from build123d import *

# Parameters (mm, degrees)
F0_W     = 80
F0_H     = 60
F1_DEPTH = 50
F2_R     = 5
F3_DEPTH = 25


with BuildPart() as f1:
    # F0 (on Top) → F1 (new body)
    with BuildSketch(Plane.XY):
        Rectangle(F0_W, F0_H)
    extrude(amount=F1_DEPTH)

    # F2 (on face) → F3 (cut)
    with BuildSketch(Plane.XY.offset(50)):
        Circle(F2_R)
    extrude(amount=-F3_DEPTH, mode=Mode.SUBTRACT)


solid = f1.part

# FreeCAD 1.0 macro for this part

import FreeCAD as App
import Part
import Sketcher

V = App.Vector

doc = App.newDocument("Part")
body = doc.addObject("PartDesign::Body", "Body")

# Sketch on XY plane
sketch1 = body.newObject("Sketcher::SketchObject", "Sketch")
sketch1.AttachmentSupport = (doc.getObject("XY_Plane"), [""])
sketch1.MapMode = "FlatFace"
sketch1.addGeometry([
    Part.LineSegment(V(-40, 30, 0), V(-40, -30, 0)),
    Part.LineSegment(V(-40, -30, 0), V(40, -30, 0)),
    Part.LineSegment(V(40, -30, 0), V(40, 30, 0)),
    Part.LineSegment(V(40, 30, 0), V(-40, 30, 0)),
], False)
sketch1.addConstraint([
    Sketcher.Constraint("Coincident", 0, 2, 1, 1),
    Sketcher.Constraint("Coincident", 1, 2, 2, 1),
    Sketcher.Constraint("Coincident", 2, 2, 3, 1),
    Sketcher.Constraint("Coincident", 3, 2, 0, 1),
    Sketcher.Constraint("Vertical", 0),
    Sketcher.Constraint("Horizontal", 1),
    Sketcher.Constraint("Vertical", 2),
    Sketcher.Constraint("Horizontal", 3),
    Sketcher.Constraint("Symmetric", 0, 2, 2, 2, -1, 1),
    Sketcher.Constraint("DistanceX", 1, 1, 1, 2, 80.0),
    Sketcher.Constraint("DistanceY", 0, 2, 0, 1, 60.0),
])
pad1 = body.newObject("PartDesign::Pad", "Pad")
pad1.Profile = sketch1
pad1.Length = 50

# Sketch on XY plane
sketch2 = body.newObject("Sketcher::SketchObject", "Sketch001")
sketch2.AttachmentSupport = (doc.getObject("XY_Plane"), [""])
sketch2.MapMode = "FlatFace"
sketch2.AttachmentOffset = App.Placement(V(0, 0, 50), App.Rotation())
sketch2.addGeometry(Part.Circle(V(0, 0, 0), V(0, 0, 1), 5), False)
sketch2.addConstraint([
    Sketcher.Constraint("Coincident", 0, 3, -1, 1),
    Sketcher.Constraint("Diameter", 0, 10.0),
])
pocket1 = body.newObject("PartDesign::Pocket", "Pocket")
pocket1.Profile = sketch2
pocket1.Length = 25

doc.recompute()
